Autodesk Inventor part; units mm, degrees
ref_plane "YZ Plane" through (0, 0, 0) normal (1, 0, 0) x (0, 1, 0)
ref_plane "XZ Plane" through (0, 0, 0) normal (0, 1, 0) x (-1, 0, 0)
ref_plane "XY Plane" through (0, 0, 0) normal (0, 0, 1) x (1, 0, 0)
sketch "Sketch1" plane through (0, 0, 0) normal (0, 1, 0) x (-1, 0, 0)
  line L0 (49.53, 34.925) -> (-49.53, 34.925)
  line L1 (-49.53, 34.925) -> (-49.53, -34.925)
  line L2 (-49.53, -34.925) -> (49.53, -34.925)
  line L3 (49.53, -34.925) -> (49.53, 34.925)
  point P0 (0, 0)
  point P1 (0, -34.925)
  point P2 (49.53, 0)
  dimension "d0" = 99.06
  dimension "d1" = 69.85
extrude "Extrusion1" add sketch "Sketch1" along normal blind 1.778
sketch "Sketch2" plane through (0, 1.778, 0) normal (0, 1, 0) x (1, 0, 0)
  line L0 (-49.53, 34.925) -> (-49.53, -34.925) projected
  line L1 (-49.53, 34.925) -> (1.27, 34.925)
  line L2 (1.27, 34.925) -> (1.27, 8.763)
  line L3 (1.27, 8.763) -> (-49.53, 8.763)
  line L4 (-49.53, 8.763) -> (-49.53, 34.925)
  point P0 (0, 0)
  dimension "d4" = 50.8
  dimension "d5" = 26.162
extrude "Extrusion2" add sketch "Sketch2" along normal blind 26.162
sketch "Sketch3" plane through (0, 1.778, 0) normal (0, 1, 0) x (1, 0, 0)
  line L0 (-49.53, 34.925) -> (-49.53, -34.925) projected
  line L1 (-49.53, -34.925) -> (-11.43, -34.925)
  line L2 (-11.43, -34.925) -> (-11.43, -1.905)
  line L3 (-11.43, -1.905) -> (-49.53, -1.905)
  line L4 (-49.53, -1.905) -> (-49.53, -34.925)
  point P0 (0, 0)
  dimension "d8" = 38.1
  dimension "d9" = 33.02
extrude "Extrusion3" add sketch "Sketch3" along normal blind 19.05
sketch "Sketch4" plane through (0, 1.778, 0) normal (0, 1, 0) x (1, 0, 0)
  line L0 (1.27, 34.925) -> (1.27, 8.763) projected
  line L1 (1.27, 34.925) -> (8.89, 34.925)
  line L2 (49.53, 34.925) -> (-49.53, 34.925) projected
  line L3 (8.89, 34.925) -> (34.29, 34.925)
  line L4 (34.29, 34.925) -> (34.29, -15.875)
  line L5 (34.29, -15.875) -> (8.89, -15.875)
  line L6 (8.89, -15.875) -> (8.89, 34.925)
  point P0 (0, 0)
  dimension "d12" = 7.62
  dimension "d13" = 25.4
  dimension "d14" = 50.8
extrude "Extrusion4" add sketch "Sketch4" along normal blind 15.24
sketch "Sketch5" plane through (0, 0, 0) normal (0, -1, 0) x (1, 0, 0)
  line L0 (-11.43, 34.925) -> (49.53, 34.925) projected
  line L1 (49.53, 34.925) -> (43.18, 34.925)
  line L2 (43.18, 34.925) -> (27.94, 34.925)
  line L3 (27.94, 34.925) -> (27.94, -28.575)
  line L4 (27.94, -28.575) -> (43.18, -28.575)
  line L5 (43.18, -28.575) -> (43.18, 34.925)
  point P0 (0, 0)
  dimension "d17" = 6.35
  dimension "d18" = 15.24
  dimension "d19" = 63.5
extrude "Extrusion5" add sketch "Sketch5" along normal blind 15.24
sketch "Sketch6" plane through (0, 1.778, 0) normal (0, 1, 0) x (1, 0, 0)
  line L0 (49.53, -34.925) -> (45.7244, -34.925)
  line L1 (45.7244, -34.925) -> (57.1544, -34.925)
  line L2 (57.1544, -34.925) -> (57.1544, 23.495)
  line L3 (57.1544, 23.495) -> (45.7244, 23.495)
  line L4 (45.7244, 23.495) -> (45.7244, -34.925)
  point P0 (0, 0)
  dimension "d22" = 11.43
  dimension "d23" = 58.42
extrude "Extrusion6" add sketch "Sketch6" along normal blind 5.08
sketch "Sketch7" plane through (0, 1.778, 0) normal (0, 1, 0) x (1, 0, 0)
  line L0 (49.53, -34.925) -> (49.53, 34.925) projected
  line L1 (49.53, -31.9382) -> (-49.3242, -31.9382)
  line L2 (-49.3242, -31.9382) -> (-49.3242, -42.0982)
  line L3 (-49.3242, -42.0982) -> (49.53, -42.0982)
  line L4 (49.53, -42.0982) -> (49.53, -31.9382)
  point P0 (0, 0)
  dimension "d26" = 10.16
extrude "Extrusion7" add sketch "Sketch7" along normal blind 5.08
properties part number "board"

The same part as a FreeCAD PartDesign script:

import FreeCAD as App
import Part
import Sketcher
from FreeCAD import Vector
Q = App.Units.Quantity

doc = App.newDocument("Part")
body = doc.addObject("PartDesign::Body", "Body")

sketch1 = doc.addObject("Sketcher::SketchObject", "Sketch")
body.addObject(sketch1)
sketch1.AttachmentSupport = (doc.XZ_Plane, [""])
sketch1.MapMode = "FlatFace"
sketch1.addGeometry([
    Part.LineSegment(Vector(-50, -35, 0), Vector(-50, 35, 0)),
    Part.LineSegment(Vector(-50, 35, 0), Vector(50, 35, 0)),
    Part.LineSegment(Vector(50, 35, 0), Vector(50, -35, 0)),
    Part.LineSegment(Vector(50, -35, 0), Vector(-50, -35, 0)),
], False)
sketch1.addConstraint([
    Sketcher.Constraint("Coincident", 0, 2, 1, 1),
    Sketcher.Constraint("Coincident", 1, 2, 2, 1),
    Sketcher.Constraint("Coincident", 2, 2, 3, 1),
    Sketcher.Constraint("Coincident", 3, 2, 0, 1),
    Sketcher.Constraint("Vertical", 0),
    Sketcher.Constraint("Horizontal", 1),
    Sketcher.Constraint("Vertical", 2),
    Sketcher.Constraint("Horizontal", 3),
    Sketcher.Constraint("Symmetric", 0, 2, 2, 2, -1, 1),
    Sketcher.Constraint("DistanceX", 1, 1, 1, 2, Q("3.9 in")),
    Sketcher.Constraint("DistanceY", 0, 1, 0, 2, Q("2.75 in")),
])
pad1 = doc.addObject("PartDesign::Pad", "Pad")
body.addObject(pad1)
pad1.Profile = sketch1
pad1.Length = Q("0.07 in")
pad1.Reversed = True

sketch2 = doc.addObject("Sketcher::SketchObject", "Sketch001")
body.addObject(sketch2)
sketch2.AttachmentSupport = (doc.XZ_Plane, [""])
sketch2.MapMode = "FlatFace"
sketch2.AttachmentOffset = App.Placement(Vector(0, 0, -0.07 * 25.4), App.Rotation())
sketch2.addGeometry([
    Part.LineSegment(Vector(1, -35, 0), Vector(-50, -35, 0)),
    Part.LineSegment(Vector(-50, -35, 0), Vector(-50, -9, 0)),
    Part.LineSegment(Vector(-50, -9, 0), Vector(1, -9, 0)),
    Part.LineSegment(Vector(1, -9, 0), Vector(1, -35, 0)),
], False)
sketch2.addConstraint([
    Sketcher.Constraint("Coincident", 0, 2, 1, 1),
    Sketcher.Constraint("Coincident", 1, 2, 2, 1),
    Sketcher.Constraint("Coincident", 2, 2, 3, 1),
    Sketcher.Constraint("Coincident", 3, 2, 0, 1),
    Sketcher.Constraint("Horizontal", 0),
    Sketcher.Constraint("Vertical", 1),
    Sketcher.Constraint("Horizontal", 2),
    Sketcher.Constraint("Vertical", 3),
    Sketcher.Constraint("DistanceX", 0, 2, 0, 1, Q("2 in")),
    Sketcher.Constraint("DistanceY", 1, 1, 1, 2, Q("1.03 in")),
    Sketcher.Constraint("DistanceX", 0, 2, -1, 1, Q("1.95 in")),
    Sketcher.Constraint("DistanceY", 0, 2, -1, 1, Q("1.375 in")),
])
pad2 = doc.addObject("PartDesign::Pad", "Pad001")
body.addObject(pad2)
pad2.Profile = sketch2
pad2.Length = Q("1.03 in")
pad2.Reversed = True

sketch3 = doc.addObject("Sketcher::SketchObject", "Sketch002")
body.addObject(sketch3)
sketch3.AttachmentSupport = (doc.XZ_Plane, [""])
sketch3.MapMode = "FlatFace"
sketch3.AttachmentOffset = App.Placement(Vector(0, 0, -0.07 * 25.4), App.Rotation())
sketch3.addGeometry([
    Part.LineSegment(Vector(-11, 2, 0), Vector(-50, 2, 0)),
    Part.LineSegment(Vector(-50, 2, 0), Vector(-50, 35, 0)),
    Part.LineSegment(Vector(-50, 35, 0), Vector(-11, 35, 0)),
    Part.LineSegment(Vector(-11, 35, 0), Vector(-11, 2, 0)),
], False)
sketch3.addConstraint([
    Sketcher.Constraint("Coincident", 0, 2, 1, 1),
    Sketcher.Constraint("Coincident", 1, 2, 2, 1),
    Sketcher.Constraint("Coincident", 2, 2, 3, 1),
    Sketcher.Constraint("Coincident", 3, 2, 0, 1),
    Sketcher.Constraint("Horizontal", 0),
    Sketcher.Constraint("Vertical", 1),
    Sketcher.Constraint("Horizontal", 2),
    Sketcher.Constraint("Vertical", 3),
    Sketcher.Constraint("DistanceX", 0, 2, 0, 1, Q("1.5 in")),
    Sketcher.Constraint("DistanceY", 1, 1, 1, 2, Q("1.3 in")),
    Sketcher.Constraint("DistanceX", 0, 2, -1, 1, Q("1.95 in")),
    Sketcher.Constraint("DistanceY", -1, 1, 0, 2, Q("0.075 in")),
])
pad3 = doc.addObject("PartDesign::Pad", "Pad002")
body.addObject(pad3)
pad3.Profile = sketch3
pad3.Length = Q("0.75 in")
pad3.Reversed = True

sketch4 = doc.addObject("Sketcher::SketchObject", "Sketch003")
body.addObject(sketch4)
sketch4.AttachmentSupport = (doc.XZ_Plane, [""])
sketch4.MapMode = "FlatFace"
sketch4.AttachmentOffset = App.Placement(Vector(0, 0, -0.07 * 25.4), App.Rotation())
sketch4.addGeometry([
    Part.LineSegment(Vector(34, 16, 0), Vector(34, -35, 0)),
    Part.LineSegment(Vector(34, -35, 0), Vector(9, -35, 0)),
    Part.LineSegment(Vector(9, -35, 0), Vector(9, 16, 0)),
    Part.LineSegment(Vector(9, 16, 0), Vector(34, 16, 0)),
], False)
sketch4.addConstraint([
    Sketcher.Constraint("Coincident", 0, 2, 1, 1),
    Sketcher.Constraint("Coincident", 1, 2, 2, 1),
    Sketcher.Constraint("Coincident", 2, 2, 3, 1),
    Sketcher.Constraint("Coincident", 3, 2, 0, 1),
    Sketcher.Constraint("Vertical", 0),
    Sketcher.Constraint("Horizontal", 1),
    Sketcher.Constraint("Vertical", 2),
    Sketcher.Constraint("Horizontal", 3),
    Sketcher.Constraint("DistanceX", 1, 2, 1, 1, Q("1 in")),
    Sketcher.Constraint("DistanceY", 0, 2, 0, 1, Q("2 in")),
    Sketcher.Constraint("DistanceX", -1, 1, 0, 2, Q("1.35 in")),
    Sketcher.Constraint("DistanceY", 0, 2, -1, 1, Q("1.375 in")),
])
pad4 = doc.addObject("PartDesign::Pad", "Pad003")
body.addObject(pad4)
pad4.Profile = sketch4
pad4.Length = Q("0.6 in")
pad4.Reversed = True

sketch5 = doc.addObject("Sketcher::SketchObject", "Sketch004")
body.addObject(sketch5)
sketch5.AttachmentSupport = (doc.XZ_Plane, [""])
sketch5.MapMode = "FlatFace"
sketch5.addGeometry([
    Part.LineSegment(Vector(43, 35, 0), Vector(28, 35, 0)),
    Part.LineSegment(Vector(28, 35, 0), Vector(28, -29, 0)),
    Part.LineSegment(Vector(28, -29, 0), Vector(43, -29, 0)),
    Part.LineSegment(Vector(43, -29, 0), Vector(43, 35, 0)),
], False)
sketch5.addConstraint([
    Sketcher.Constraint("Coincident", 0, 2, 1, 1),
    Sketcher.Constraint("Coincident", 1, 2, 2, 1),
    Sketcher.Constraint("Coincident", 2, 2, 3, 1),
    Sketcher.Constraint("Coincident", 3, 2, 0, 1),
    Sketcher.Constraint("Horizontal", 0),
    Sketcher.Constraint("Vertical", 1),
    Sketcher.Constraint("Horizontal", 2),
    Sketcher.Constraint("Vertical", 3),
    Sketcher.Constraint("DistanceX", 0, 2, 0, 1, Q("0.6 in")),
    Sketcher.Constraint("DistanceY", 1, 2, 1, 1, Q("2.5 in")),
    Sketcher.Constraint("DistanceX", -1, 1, 0, 2, Q("1.1 in")),
    Sketcher.Constraint("DistanceY", -1, 1, 0, 2, Q("1.375 in")),
])
pad5 = doc.addObject("PartDesign::Pad", "Pad004")
body.addObject(pad5)
pad5.Profile = sketch5
pad5.Length = Q("0.6 in")

sketch6 = doc.addObject("Sketcher::SketchObject", "Sketch005")
body.addObject(sketch6)
sketch6.AttachmentSupport = (doc.XZ_Plane, [""])
sketch6.MapMode = "FlatFace"
sketch6.AttachmentOffset = App.Placement(Vector(0, 0, -0.07 * 25.4), App.Rotation())
sketch6.addGeometry([
    Part.LineSegment(Vector(46, 35, 0), Vector(57, 35, 0)),
    Part.LineSegment(Vector(57, 35, 0), Vector(57, -23, 0)),
    Part.LineSegment(Vector(57, -23, 0), Vector(46, -23, 0)),
    Part.LineSegment(Vector(46, -23, 0), Vector(46, 35, 0)),
], False)
sketch6.addConstraint([
    Sketcher.Constraint("Coincident", 0, 2, 1, 1),
    Sketcher.Constraint("Coincident", 1, 2, 2, 1),
    Sketcher.Constraint("Coincident", 2, 2, 3, 1),
    Sketcher.Constraint("Coincident", 3, 2, 0, 1),
    Sketcher.Constraint("Horizontal", 0),
    Sketcher.Constraint("Vertical", 1),
    Sketcher.Constraint("Horizontal", 2),
    Sketcher.Constraint("Vertical", 3),
    Sketcher.Constraint("DistanceY", 1, 2, 1, 1, Q("2.3 in")),
    Sketcher.Constraint("DistanceX", 0, 1, 0, 2, Q("0.45 in")),
    Sketcher.Constraint("DistanceY", -1, 1, 0, 2, Q("1.375 in")),
    Sketcher.Constraint("DistanceX", -1, 1, 0, 2, Q("57.1544 mm")),
])
pad6 = doc.addObject("PartDesign::Pad", "Pad005")
body.addObject(pad6)
pad6.Profile = sketch6
pad6.Length = Q("0.2 in")
pad6.Reversed = True

sketch7 = doc.addObject("Sketcher::SketchObject", "Sketch006")
body.addObject(sketch7)
sketch7.AttachmentSupport = (doc.XZ_Plane, [""])
sketch7.MapMode = "FlatFace"
sketch7.AttachmentOffset = App.Placement(Vector(0, 0, -0.07 * 25.4), App.Rotation())
sketch7.addGeometry([
    Part.LineSegment(Vector(50, 42, 0), Vector(50, 32, 0)),
    Part.LineSegment(Vector(50, 32, 0), Vector(-49, 32, 0)),
    Part.LineSegment(Vector(-49, 32, 0), Vector(-49, 42, 0)),
    Part.LineSegment(Vector(-49, 42, 0), Vector(50, 42, 0)),
], False)
sketch7.addConstraint([
    Sketcher.Constraint("Coincident", 0, 2, 1, 1),
    Sketcher.Constraint("Coincident", 1, 2, 2, 1),
    Sketcher.Constraint("Coincident", 2, 2, 3, 1),
    Sketcher.Constraint("Coincident", 3, 2, 0, 1),
    Sketcher.Constraint("Vertical", 0),
    Sketcher.Constraint("Horizontal", 1),
    Sketcher.Constraint("Vertical", 2),
    Sketcher.Constraint("Horizontal", 3),
    Sketcher.Constraint("DistanceY", 0, 2, 0, 1, Q("0.4 in")),
    Sketcher.Constraint("DistanceX", -1, 1, 0, 2, Q("1.95 in")),
    Sketcher.Constraint("DistanceX", 1, 2, 1, 1, Q("3.8919 in")),
    Sketcher.Constraint("DistanceY", -1, 1, 0, 2, Q("1.2574 in")),
])
pad7 = doc.addObject("PartDesign::Pad", "Pad006")
body.addObject(pad7)
pad7.Profile = sketch7
pad7.Length = Q("0.2 in")
pad7.Reversed = True

doc.recompute()
